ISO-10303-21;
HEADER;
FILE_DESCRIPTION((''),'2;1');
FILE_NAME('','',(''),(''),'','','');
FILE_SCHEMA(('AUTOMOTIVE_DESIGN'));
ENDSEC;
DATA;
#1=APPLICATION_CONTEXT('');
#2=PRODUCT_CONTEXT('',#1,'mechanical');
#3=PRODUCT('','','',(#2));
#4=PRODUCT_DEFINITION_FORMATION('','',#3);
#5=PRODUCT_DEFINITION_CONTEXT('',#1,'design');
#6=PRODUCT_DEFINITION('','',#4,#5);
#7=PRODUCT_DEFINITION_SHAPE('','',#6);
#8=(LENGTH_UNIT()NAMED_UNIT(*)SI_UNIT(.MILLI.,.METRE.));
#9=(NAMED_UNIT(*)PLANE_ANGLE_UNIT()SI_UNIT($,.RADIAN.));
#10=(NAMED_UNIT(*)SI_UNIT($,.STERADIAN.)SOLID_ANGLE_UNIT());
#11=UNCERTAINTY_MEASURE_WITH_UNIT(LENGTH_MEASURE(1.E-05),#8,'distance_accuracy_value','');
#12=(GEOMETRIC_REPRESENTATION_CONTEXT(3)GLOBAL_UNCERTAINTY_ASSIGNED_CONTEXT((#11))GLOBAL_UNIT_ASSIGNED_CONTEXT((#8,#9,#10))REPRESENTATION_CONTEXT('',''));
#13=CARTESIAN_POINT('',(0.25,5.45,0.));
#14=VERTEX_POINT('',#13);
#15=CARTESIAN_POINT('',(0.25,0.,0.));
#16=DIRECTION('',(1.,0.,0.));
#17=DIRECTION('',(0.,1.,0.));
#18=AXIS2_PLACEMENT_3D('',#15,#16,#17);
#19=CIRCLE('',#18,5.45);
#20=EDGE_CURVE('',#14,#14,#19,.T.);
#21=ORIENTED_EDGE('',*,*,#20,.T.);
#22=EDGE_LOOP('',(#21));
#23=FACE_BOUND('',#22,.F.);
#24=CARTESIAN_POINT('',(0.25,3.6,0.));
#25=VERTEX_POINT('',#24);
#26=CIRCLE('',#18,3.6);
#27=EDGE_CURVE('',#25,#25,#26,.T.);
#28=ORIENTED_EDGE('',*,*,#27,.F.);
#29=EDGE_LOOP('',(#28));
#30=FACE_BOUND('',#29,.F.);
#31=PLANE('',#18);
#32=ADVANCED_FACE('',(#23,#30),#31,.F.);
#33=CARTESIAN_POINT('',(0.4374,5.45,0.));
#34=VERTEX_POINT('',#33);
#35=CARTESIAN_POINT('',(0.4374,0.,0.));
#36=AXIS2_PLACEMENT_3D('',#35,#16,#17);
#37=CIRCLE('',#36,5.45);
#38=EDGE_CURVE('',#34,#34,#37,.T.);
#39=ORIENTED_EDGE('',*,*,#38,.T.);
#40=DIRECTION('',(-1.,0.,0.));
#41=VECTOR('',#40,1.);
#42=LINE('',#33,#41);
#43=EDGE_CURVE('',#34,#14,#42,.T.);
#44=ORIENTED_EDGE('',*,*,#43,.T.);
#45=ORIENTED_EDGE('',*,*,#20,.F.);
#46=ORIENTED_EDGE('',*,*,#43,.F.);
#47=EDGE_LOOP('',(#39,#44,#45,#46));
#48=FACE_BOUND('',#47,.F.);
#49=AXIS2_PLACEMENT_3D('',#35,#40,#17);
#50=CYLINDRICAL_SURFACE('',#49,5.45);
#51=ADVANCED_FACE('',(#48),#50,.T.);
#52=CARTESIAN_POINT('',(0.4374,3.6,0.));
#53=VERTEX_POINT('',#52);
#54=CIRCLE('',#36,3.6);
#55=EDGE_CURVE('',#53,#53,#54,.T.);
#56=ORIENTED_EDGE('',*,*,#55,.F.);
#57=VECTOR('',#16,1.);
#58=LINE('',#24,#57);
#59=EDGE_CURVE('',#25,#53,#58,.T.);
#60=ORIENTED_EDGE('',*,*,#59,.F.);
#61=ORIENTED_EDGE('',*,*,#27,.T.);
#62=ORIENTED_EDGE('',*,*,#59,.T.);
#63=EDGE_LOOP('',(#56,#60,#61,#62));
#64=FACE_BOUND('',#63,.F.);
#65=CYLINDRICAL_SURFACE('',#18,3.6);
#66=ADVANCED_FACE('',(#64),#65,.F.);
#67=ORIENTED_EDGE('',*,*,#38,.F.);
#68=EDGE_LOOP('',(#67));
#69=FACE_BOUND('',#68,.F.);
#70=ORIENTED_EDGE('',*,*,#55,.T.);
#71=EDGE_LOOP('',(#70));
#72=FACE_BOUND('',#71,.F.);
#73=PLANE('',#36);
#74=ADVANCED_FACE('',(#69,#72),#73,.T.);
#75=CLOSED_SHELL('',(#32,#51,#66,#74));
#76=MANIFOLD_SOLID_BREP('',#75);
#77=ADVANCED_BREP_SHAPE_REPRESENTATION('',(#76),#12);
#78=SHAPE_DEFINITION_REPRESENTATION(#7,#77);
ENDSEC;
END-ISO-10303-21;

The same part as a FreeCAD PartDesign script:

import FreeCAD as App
import Part
import Sketcher

V = App.Vector
Q = App.Units.Quantity


def add_polygon(sketch, points):
    """Adds a closed chain of lines whose ends are joined by coincident constraints."""
    first, n = sketch.GeometryCount, len(points)
    for a, b in zip(points, points[1:] + points[:1]):
        sketch.addGeometry(Part.LineSegment(App.Vector(*a, 0), App.Vector(*b, 0)), False)
    for i in range(n):
        sketch.addConstraint(Sketcher.Constraint("Coincident", first + i, 2, first + (i + 1) % n, 1))

doc = App.newDocument("Part")
body = doc.addObject("PartDesign::Body", "Body")

sketch1 = body.newObject("Sketcher::SketchObject", "Sketch")
sketch1.AttachmentSupport = (doc.getObject("XY_Plane"), [""])
sketch1.MapMode = "FlatFace"
add_polygon(sketch1, [(0.25, 5.45), (0.25, 3.6), (0.44, 3.6), (0.44, 5.45)])
sketch1.addConstraint([
    Sketcher.Constraint("Vertical", 0),
    Sketcher.Constraint("Horizontal", 1),
    Sketcher.Constraint("Vertical", 2),
    Sketcher.Constraint("Horizontal", 3),
    Sketcher.Constraint("DistanceY", 0, 2, 0, 1, Q("1.85 mm")),
    Sketcher.Constraint("DistanceY", -1, 1, 0, 2, Q("3.6 mm")),
    Sketcher.Constraint("DistanceX", -1, 1, 0, 2, Q("0.25 mm")),
    Sketcher.Constraint("DistanceX", 1, 1, 1, 2, Q("0.1874 mm")),
])
revolution = body.newObject("PartDesign::Revolution", "Revolution")
revolution.Profile = sketch1
revolution.ReferenceAxis = (sketch1, ["H_Axis"])
revolution.Angle = 360

doc.recompute()
